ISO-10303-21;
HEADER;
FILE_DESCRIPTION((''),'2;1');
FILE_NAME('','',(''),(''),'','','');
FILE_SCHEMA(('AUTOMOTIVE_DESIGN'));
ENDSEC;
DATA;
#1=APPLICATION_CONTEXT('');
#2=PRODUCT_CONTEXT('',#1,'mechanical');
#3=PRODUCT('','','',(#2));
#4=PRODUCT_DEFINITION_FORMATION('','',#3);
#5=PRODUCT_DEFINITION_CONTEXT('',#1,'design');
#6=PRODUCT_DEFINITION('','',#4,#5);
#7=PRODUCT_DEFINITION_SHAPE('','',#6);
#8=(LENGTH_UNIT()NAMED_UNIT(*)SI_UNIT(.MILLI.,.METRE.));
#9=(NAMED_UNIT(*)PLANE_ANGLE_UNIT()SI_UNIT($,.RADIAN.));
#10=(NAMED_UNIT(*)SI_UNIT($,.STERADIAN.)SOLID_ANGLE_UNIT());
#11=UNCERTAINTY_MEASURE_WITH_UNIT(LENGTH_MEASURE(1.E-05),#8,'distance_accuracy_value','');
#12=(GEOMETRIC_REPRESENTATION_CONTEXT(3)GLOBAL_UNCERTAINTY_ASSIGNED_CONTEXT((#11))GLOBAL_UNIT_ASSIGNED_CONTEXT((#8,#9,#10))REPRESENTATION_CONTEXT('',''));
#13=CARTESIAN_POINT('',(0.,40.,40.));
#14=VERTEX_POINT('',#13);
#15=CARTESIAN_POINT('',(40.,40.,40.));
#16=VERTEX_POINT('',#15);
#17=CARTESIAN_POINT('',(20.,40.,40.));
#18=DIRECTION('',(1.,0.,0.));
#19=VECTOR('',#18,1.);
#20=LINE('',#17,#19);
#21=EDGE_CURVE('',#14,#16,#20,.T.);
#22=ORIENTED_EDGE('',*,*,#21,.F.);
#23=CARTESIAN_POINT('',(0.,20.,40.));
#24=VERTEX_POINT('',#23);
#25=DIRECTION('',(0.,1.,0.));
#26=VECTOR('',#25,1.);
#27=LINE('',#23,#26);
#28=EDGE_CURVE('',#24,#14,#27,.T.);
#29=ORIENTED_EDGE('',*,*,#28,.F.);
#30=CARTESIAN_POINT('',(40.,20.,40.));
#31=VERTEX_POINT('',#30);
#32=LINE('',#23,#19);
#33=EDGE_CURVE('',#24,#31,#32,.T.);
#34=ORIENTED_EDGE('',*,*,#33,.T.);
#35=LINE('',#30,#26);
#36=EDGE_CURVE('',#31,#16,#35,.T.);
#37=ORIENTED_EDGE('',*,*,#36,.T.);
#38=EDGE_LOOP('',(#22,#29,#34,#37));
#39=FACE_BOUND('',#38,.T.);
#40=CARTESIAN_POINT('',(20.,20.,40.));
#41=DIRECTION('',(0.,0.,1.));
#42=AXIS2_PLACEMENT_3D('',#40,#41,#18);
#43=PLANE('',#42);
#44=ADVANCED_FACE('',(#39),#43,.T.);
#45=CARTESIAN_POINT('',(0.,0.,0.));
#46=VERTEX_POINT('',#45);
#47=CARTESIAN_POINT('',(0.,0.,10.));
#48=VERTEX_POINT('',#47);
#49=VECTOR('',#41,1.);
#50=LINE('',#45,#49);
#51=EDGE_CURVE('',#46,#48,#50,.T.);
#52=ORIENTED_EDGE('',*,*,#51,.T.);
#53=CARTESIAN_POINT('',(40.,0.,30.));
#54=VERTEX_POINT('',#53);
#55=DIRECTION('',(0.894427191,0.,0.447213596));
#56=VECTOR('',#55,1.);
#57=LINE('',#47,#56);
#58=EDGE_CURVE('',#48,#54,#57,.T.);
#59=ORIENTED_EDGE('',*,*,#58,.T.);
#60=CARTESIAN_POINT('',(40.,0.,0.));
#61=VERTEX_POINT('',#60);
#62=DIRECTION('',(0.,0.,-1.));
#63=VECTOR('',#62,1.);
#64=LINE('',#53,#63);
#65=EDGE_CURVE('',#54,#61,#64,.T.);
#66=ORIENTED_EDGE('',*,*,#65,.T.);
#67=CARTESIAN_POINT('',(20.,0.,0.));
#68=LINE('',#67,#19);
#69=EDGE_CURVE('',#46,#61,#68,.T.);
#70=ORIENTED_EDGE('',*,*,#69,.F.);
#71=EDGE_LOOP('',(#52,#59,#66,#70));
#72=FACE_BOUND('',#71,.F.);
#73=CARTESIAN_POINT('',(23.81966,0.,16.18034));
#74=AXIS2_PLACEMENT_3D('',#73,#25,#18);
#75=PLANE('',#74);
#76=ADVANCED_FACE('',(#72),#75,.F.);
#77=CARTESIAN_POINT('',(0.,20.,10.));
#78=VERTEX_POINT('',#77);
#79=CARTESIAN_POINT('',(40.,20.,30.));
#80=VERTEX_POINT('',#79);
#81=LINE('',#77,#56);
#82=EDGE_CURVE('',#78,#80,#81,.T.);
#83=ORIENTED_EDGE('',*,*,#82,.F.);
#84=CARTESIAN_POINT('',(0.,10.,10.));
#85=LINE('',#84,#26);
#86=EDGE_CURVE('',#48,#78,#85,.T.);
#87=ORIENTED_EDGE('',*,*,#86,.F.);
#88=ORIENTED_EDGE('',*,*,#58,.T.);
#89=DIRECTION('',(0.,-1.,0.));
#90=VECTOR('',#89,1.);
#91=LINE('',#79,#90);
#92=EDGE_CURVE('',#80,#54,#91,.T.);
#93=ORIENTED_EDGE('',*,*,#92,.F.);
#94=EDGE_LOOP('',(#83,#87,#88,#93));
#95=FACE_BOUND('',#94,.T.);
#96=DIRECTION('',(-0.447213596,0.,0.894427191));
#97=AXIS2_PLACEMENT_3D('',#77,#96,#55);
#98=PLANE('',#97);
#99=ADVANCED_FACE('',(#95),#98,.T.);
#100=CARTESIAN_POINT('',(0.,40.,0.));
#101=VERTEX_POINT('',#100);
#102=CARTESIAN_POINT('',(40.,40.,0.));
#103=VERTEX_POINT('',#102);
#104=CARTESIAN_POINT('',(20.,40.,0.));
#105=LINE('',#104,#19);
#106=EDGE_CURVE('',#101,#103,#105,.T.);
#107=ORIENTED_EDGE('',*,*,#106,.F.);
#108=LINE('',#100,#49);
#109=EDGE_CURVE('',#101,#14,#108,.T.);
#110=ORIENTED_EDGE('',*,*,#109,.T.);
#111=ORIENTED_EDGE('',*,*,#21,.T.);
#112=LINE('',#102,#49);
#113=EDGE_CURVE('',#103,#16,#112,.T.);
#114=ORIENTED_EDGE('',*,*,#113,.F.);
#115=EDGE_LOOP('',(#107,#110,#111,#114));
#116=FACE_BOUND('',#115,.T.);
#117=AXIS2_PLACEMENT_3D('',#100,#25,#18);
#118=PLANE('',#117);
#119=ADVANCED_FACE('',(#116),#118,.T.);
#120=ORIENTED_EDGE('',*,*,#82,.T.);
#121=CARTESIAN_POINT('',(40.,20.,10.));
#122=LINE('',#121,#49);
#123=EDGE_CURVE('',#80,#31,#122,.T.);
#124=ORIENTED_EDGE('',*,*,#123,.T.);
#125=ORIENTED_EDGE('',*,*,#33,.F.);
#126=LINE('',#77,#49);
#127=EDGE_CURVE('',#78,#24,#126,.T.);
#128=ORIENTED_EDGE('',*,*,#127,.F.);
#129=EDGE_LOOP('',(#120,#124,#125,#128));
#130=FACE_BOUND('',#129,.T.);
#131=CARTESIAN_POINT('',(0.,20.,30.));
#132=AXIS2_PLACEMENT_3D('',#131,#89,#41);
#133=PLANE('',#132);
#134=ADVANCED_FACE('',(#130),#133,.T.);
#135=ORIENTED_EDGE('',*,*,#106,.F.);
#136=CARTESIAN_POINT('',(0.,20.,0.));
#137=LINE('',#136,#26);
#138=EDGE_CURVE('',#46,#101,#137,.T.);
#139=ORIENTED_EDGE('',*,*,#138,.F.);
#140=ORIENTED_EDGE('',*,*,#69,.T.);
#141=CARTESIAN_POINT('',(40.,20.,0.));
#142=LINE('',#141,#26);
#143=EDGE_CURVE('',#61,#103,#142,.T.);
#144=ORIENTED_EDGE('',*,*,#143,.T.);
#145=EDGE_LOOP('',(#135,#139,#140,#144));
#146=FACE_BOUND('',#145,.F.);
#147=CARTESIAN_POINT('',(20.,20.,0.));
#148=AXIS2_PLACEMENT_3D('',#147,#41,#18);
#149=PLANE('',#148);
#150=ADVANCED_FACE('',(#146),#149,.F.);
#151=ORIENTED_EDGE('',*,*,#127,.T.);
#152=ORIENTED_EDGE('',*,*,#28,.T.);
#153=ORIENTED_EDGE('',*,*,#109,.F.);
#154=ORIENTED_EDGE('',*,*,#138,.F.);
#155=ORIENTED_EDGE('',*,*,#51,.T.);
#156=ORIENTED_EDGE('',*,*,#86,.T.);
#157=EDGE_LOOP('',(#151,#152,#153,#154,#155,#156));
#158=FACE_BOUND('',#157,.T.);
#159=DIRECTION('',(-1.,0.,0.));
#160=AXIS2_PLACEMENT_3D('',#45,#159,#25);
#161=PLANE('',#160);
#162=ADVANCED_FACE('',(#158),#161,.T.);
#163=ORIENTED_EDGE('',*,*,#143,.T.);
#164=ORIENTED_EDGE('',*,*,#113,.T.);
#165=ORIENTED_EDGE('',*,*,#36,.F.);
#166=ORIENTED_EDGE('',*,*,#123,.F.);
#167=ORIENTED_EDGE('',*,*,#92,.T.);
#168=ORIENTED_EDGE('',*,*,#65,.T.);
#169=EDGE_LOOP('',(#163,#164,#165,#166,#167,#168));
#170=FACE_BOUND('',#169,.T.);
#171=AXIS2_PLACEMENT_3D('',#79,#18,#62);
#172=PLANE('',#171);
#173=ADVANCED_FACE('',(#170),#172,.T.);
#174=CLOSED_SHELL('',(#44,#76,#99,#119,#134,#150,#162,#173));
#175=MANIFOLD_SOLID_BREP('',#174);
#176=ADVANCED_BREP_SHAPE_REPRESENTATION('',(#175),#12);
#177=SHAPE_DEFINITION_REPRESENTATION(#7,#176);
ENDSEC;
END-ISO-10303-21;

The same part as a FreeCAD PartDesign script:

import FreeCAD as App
import Part
import Sketcher

V = App.Vector


def add_polygon(sketch, points):
    """Adds a closed chain of lines whose ends are joined by coincident constraints."""
    first, n = sketch.GeometryCount, len(points)
    for a, b in zip(points, points[1:] + points[:1]):
        sketch.addGeometry(Part.LineSegment(App.Vector(*a, 0), App.Vector(*b, 0)), False)
    for i in range(n):
        sketch.addConstraint(Sketcher.Constraint("Coincident", first + i, 2, first + (i + 1) % n, 1))

doc = App.newDocument("Part")
params = doc.addObject("Spreadsheet::Sheet", "Params")
for row, (alias, value) in enumerate([
    ("sketch1_width", "40 mm"),
    ("pad1_length", "40 mm"),
    ("sketch2_width", "20 mm"),
    ("sketch2_height", "10 mm"),
    ("pocket1_length", "40 mm"),
    ("sketch3_width", "20 mm"),
    ("pocket2_length", "47 mm"),
    ("sketch4_width", "40 mm"),
    ("sketch4_height", "20 mm"),
    ("pad2_length", "20 mm"),
], start=1):
    params.set(f"A{row}", alias)
    params.set(f"B{row}", "=" + value)
    params.setAlias(f"B{row}", alias)

body = doc.addObject("PartDesign::Body", "Body")

# Sketch on XY plane
sketch1 = body.newObject("Sketcher::SketchObject", "Sketch")
sketch1.AttachmentSupport = (doc.getObject("XY_Plane"), [""])
sketch1.MapMode = "FlatFace"
add_polygon(sketch1, [(0, 40), (0, 0), (40, 0), (40, 40)])  # lines 0-3
sketch1.addConstraint(Sketcher.Constraint("Vertical", 0))
sketch1.addConstraint(Sketcher.Constraint("Horizontal", 1))
sketch1.addConstraint(Sketcher.Constraint("Vertical", 2))
sketch1.addConstraint(Sketcher.Constraint("Horizontal", 3))
sketch1.addConstraint(Sketcher.Constraint("Coincident", 0, 2, -1, 1))
sketch1.addConstraint(Sketcher.Constraint("Equal", 3, 0))
sketch1.addConstraint(Sketcher.Constraint("DistanceX", 1, 1, 1, 2, 40.0))
sketch1.setExpression("Constraints[10]", "Params.sketch1_width")
pad1 = body.newObject("PartDesign::Pad", "Pad")
pad1.Profile = sketch1
pad1.setExpression("Length", "Params.pad1_length")

# Sketch on YZ plane
sketch2 = body.newObject("Sketcher::SketchObject", "Sketch001")
sketch2.AttachmentSupport = (doc.getObject("YZ_Plane"), [""])
sketch2.MapMode = "FlatFace"
add_polygon(sketch2, [(20, 30), (0, 30), (0, 40), (20, 40)])  # lines 0-3
sketch2.addConstraint(Sketcher.Constraint("Horizontal", 0))
sketch2.addConstraint(Sketcher.Constraint("Vertical", 1))
sketch2.addConstraint(Sketcher.Constraint("Horizontal", 2))
sketch2.addConstraint(Sketcher.Constraint("Vertical", 3))
sketch2.addConstraint(Sketcher.Constraint("PointOnObject", 0, 2, -2))
sketch2.addConstraint(Sketcher.Constraint("DistanceX", 0, 2, 0, 1, 20.0))
sketch2.addConstraint(Sketcher.Constraint("DistanceY", 1, 1, 1, 2, 10.0))
sketch2.addConstraint(Sketcher.Constraint("DistanceY", -1, 1, 0, 2, 30.0))
sketch2.setExpression("Constraints[9]", "Params.sketch2_width")
sketch2.setExpression("Constraints[10]", "Params.sketch2_height")
pocket1 = body.newObject("PartDesign::Pocket", "Pocket")
pocket1.Profile = sketch2
pocket1.setExpression("Length", "Params.pocket1_length")
pocket1.Reversed = True

# Sketch on YZ plane
sketch3 = body.newObject("Sketcher::SketchObject", "Sketch002")
sketch3.AttachmentSupport = (doc.getObject("YZ_Plane"), [""])
sketch3.MapMode = "FlatFace"
add_polygon(sketch3, [(20, 10), (0, 10), (0, 30), (20, 30)])  # lines 0-3
sketch3.addConstraint(Sketcher.Constraint("Horizontal", 0))
sketch3.addConstraint(Sketcher.Constraint("Vertical", 1))
sketch3.addConstraint(Sketcher.Constraint("Horizontal", 2))
sketch3.addConstraint(Sketcher.Constraint("Vertical", 3))
sketch3.addConstraint(Sketcher.Constraint("PointOnObject", 0, 2, -2))
sketch3.addConstraint(Sketcher.Constraint("Equal", 2, 1))
sketch3.addConstraint(Sketcher.Constraint("DistanceX", 0, 2, 0, 1, 20.0))
sketch3.addConstraint(Sketcher.Constraint("DistanceY", -1, 1, 0, 2, 10.0))
sketch3.setExpression("Constraints[10]", "Params.sketch3_width")
pocket2 = body.newObject("PartDesign::Pocket", "Pocket001")
pocket2.Profile = sketch3
pocket2.setExpression("Length", "Params.pocket2_length")
pocket2.Reversed = True

# Sketch on XZ plane
sketch4 = body.newObject("Sketcher::SketchObject", "Sketch003")
sketch4.AttachmentSupport = (doc.getObject("XZ_Plane"), [""])
sketch4.MapMode = "FlatFace"
sketch4.AttachmentOffset = App.Placement(V(0, 0, -20), App.Rotation())
add_polygon(sketch4, [(40, 30), (40, 10), (0, 10)])  # lines 0-2
sketch4.addConstraint(Sketcher.Constraint("Vertical", 0))
sketch4.addConstraint(Sketcher.Constraint("Horizontal", 1))
sketch4.addConstraint(Sketcher.Constraint("PointOnObject", 1, 2, -2))
sketch4.addConstraint(Sketcher.Constraint("DistanceX", 1, 2, 1, 1, 40.0))
sketch4.addConstraint(Sketcher.Constraint("DistanceY", 0, 2, 0, 1, 20.0))
sketch4.addConstraint(Sketcher.Constraint("DistanceY", -1, 1, 0, 2, 10.0))
sketch4.setExpression("Constraints[6]", "Params.sketch4_width")
sketch4.setExpression("Constraints[7]", "Params.sketch4_height")
pad2 = body.newObject("PartDesign::Pad", "Pad001")
pad2.Profile = sketch4
pad2.setExpression("Length", "Params.pad2_length")

doc.recompute()
